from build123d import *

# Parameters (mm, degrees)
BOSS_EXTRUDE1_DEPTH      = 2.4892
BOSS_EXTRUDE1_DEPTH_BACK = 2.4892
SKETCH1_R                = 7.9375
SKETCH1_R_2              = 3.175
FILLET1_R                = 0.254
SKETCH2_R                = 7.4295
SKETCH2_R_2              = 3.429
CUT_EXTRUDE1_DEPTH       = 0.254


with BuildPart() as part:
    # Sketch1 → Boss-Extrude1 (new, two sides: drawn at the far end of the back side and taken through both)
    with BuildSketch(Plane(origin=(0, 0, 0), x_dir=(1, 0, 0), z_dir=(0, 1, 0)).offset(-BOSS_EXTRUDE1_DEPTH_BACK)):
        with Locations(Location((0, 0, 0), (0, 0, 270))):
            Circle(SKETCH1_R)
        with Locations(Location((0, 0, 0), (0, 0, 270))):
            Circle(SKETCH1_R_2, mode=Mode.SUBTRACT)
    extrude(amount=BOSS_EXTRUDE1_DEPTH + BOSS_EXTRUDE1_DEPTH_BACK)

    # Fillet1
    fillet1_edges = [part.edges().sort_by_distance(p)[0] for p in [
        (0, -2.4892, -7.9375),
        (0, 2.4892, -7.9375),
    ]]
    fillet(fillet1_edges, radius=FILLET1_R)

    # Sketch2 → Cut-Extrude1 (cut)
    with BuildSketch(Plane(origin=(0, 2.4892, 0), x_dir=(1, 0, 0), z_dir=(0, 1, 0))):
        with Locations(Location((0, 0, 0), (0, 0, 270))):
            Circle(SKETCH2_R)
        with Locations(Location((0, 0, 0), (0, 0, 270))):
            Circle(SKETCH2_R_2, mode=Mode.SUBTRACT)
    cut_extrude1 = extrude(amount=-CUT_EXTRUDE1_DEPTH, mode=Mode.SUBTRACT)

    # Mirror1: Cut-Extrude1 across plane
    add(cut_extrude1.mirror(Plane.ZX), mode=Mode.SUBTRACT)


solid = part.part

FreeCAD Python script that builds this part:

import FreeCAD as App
import Part
import Sketcher
from FreeCAD import Vector
Q = App.Units.Quantity


def edges_at(feature, points):
    """Names of the edges that pass closest to the given points."""
    edges = feature.Shape.Edges
    near = lambda p: min(range(len(edges)), key=lambda i: edges[i].distToShape(Part.Vertex(*p))[0])
    return sorted({f"Edge{near(p) + 1}" for p in points})

doc = App.newDocument("Part")
body = doc.addObject("PartDesign::Body", "Body")

sketch1 = body.newObject("Sketcher::SketchObject", "Sketch")
sketch1.AttachmentSupport = (doc.getObject("XZ_Plane"), [""])
sketch1.MapMode = "FlatFace"
sketch1.addGeometry(Part.Circle(Vector(0, 0, 0), Vector(0, 0, 1), 7.9), False)
sketch1.addGeometry(Part.Circle(Vector(0, 0, 0), Vector(0, 0, 1), 3.2), False)
sketch1.addConstraint(Sketcher.Constraint("Coincident", 0, 3, -1, 1))
sketch1.addConstraint(Sketcher.Constraint("Coincident", 1, 3, -1, 1))
sketch1.addConstraint(Sketcher.Constraint("Diameter", 1, Q("0.25 in")))
sketch1.addConstraint(Sketcher.Constraint("Diameter", 0, Q("0.625 in")))
pad1 = body.newObject("PartDesign::Pad", "Pad")
pad1.Profile = sketch1
pad1.Type = "TwoLengths"
pad1.Length = Q("0.098 in")
pad1.Length2 = Q("0.098 in")
pad1.Reversed = True
doc.recompute()

fillet = body.newObject("PartDesign::Fillet", "Fillet")
fillet.Base = (pad1, edges_at(pad1, [(0, -2.489, -7.938), (0, 2.489, -7.938)]))
fillet.Radius = Q("0.01 in")

sketch2 = body.newObject("Sketcher::SketchObject", "Sketch001")
sketch2.AttachmentSupport = (doc.getObject("XZ_Plane"), [""])
sketch2.MapMode = "FlatFace"
sketch2.AttachmentOffset = App.Placement(Vector(0, 0, -0.098 * 25.4), App.Rotation())
sketch2.addGeometry(Part.Circle(Vector(0, 0, 0), Vector(0, 0, 1), 7.4), False)
sketch2.addGeometry(Part.Circle(Vector(0, 0, 0), Vector(0, 0, 1), 3.4), False)
sketch2.addConstraint(Sketcher.Constraint("Coincident", 0, 3, -1, 1))
sketch2.addConstraint(Sketcher.Constraint("Coincident", 1, 3, -1, 1))
sketch2.addConstraint(Sketcher.Constraint("Diameter", 1, Q("0.27 in")))
sketch2.addConstraint(Sketcher.Constraint("Diameter", 0, Q("0.585 in")))
pocket1 = body.newObject("PartDesign::Pocket", "Pocket")
pocket1.Profile = sketch2
pocket1.Length = Q("0.01 in")
pocket1.Reversed = True
doc.recompute()

mirrored = body.newObject("PartDesign::Mirrored", "Mirrored")
mirrored.Originals = [pocket1]
mirrored.MirrorPlane = (doc.getObject("XZ_Plane"), [""])
body.Tip = mirrored

doc.recompute()
